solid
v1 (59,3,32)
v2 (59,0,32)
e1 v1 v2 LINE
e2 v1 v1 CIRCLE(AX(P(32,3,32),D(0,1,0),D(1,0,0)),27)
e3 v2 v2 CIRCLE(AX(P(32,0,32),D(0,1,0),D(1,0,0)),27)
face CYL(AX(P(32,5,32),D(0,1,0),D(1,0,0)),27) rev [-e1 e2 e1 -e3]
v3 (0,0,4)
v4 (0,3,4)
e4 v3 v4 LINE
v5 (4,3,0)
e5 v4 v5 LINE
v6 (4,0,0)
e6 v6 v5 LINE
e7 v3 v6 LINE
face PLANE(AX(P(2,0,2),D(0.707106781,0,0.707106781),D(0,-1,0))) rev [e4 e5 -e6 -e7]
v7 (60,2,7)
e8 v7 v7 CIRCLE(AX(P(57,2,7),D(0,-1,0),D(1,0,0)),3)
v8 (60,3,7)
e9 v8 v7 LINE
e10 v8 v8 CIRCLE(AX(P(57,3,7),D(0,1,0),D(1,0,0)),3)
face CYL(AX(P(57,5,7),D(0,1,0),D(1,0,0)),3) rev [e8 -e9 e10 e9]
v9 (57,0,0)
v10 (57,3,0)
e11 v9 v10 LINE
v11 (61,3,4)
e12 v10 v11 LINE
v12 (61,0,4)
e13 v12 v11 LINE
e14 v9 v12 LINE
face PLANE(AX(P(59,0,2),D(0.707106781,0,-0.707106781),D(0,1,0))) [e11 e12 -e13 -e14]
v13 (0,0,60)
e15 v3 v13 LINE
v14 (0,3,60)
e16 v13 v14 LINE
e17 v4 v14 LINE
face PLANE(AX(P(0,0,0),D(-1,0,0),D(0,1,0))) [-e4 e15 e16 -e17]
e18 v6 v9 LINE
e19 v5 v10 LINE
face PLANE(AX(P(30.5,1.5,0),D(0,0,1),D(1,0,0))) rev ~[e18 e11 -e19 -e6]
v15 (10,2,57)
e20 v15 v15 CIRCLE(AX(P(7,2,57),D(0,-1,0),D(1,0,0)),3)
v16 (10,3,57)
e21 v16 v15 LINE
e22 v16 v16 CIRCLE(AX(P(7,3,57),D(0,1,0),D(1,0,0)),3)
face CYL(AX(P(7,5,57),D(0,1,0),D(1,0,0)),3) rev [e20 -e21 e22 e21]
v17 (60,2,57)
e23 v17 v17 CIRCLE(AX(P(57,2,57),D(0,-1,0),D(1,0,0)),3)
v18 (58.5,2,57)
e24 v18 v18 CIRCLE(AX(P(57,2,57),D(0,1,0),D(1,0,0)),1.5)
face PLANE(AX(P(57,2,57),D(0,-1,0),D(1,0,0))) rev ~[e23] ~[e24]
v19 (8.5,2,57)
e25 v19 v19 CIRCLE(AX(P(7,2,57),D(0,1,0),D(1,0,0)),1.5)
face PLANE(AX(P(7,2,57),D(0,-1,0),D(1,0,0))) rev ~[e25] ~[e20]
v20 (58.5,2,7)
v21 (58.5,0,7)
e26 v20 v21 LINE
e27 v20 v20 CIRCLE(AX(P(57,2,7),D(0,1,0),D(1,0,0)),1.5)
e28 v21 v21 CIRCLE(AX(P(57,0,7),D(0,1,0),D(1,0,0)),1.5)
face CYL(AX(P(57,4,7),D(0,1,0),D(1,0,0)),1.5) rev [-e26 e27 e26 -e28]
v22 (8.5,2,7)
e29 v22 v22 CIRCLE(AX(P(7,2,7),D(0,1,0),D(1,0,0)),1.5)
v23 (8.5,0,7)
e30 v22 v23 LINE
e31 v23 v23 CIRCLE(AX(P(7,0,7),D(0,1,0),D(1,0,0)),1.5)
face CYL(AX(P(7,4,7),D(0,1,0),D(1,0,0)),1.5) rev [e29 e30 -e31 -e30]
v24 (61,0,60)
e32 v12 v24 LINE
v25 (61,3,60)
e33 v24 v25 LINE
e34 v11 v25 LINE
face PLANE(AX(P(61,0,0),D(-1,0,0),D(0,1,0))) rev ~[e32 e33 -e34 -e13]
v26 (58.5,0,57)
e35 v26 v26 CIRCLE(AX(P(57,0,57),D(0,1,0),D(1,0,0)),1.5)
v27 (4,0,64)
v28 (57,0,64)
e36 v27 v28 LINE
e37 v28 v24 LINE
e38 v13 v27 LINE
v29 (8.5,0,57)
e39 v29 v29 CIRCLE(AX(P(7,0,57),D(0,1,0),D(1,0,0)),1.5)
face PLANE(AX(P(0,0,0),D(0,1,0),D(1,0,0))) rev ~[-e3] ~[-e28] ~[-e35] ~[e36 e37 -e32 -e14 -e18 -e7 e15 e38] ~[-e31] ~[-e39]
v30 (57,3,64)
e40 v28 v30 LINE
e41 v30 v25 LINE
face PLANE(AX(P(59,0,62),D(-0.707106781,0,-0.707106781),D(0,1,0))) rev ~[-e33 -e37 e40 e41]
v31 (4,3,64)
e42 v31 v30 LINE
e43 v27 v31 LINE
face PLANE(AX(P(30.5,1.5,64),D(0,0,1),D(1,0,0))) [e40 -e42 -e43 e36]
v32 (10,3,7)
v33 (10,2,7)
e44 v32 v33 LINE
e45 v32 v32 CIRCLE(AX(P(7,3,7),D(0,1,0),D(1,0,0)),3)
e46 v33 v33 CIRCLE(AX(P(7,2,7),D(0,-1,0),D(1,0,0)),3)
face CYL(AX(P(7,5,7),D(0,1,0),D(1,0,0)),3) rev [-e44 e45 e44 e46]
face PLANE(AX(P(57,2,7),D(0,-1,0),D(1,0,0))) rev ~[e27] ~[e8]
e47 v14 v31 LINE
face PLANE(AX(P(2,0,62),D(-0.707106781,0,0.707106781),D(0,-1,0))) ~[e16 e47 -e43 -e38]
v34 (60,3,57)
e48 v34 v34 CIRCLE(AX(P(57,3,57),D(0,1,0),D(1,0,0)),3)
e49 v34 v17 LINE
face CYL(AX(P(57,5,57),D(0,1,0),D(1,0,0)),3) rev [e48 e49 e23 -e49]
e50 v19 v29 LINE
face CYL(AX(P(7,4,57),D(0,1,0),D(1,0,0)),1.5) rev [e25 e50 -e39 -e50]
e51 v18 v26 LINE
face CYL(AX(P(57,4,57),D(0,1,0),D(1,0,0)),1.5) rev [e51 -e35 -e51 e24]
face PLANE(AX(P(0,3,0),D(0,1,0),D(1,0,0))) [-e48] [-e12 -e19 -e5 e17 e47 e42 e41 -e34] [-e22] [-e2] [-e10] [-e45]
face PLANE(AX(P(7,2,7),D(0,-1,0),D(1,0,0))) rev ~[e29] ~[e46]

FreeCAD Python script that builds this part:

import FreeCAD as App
import Part
import Sketcher


def edges_at(feature, points):
    """Names of the edges that pass closest to the given points."""
    edges = feature.Shape.Edges
    near = lambda p: min(range(len(edges)), key=lambda i: edges[i].distToShape(Part.Vertex(*p))[0])
    return sorted({f"Edge{near(p) + 1}" for p in points})

doc = App.newDocument("Part")
params = doc.addObject("Spreadsheet::Sheet", "Params")
for row, (alias, value) in enumerate([
    ("sketch1_diameter", "6 mm"),
    ("pad1_length", "3 mm"),
    ("sketch2_diameter", "6 mm"),
    ("pad2_length", "3 mm"),
    ("sketch3_diameter", "6 mm"),
    ("pad3_length", "3 mm"),
    ("sketch4_diameter", "6 mm"),
    ("pad4_length", "3 mm"),
    ("sketch5_diameter", "54 mm"),
    ("pad5_length", "10 mm"),
    ("sketch6_diameter", "3 mm"),
    ("pad6_length", "10 mm"),
    ("sketch7_diameter", "3 mm"),
    ("pad7_length", "10 mm"),
    ("sketch8_diameter", "3 mm"),
    ("pad8_length", "10 mm"),
    ("sketch9_diameter", "3 mm"),
    ("pad9_length", "10 mm"),
    ("sketch10_width", "61 mm"),
    ("sketch10_height", "3 mm"),
    ("pad10_length", "64 mm"),
    ("chamfer_size", "4 mm"),
    ("chamfer2_size", "4 mm"),
], start=1):
    params.set(f"A{row}", alias)
    params.set(f"B{row}", "=" + value)
    params.setAlias(f"B{row}", alias)

body = doc.addObject("PartDesign::Body", "Body")

# Sketch on XZ plane
sketch1 = body.newObject("Sketcher::SketchObject", "Sketch")
sketch1.AttachmentSupport = (doc.getObject("XZ_Plane"), [""])
sketch1.MapMode = "FlatFace"
sketch1.addGeometry(Part.Circle(App.Vector(50, 0, 0), App.Vector(0, 0, 1), 3), False)
sketch1.addConstraint([
    Sketcher.Constraint("PointOnObject", 0, 3, -1),
    Sketcher.Constraint("Diameter", 0, 6.0),
    Sketcher.Constraint("DistanceX", -1, 1, 0, 3, 50.0),
])
sketch1.setExpression("Constraints[1]", "Params.sketch1_diameter")
pad1 = body.newObject("PartDesign::Pad", "Pad")
pad1.Profile = sketch1
pad1.setExpression("Length", "Params.pad1_length")
body2 = doc.addObject("PartDesign::Body", "Body001")

# Sketch on XZ plane
sketch2 = body2.newObject("Sketcher::SketchObject", "Sketch001")
sketch2.AttachmentSupport = (doc.getObject("XZ_Plane001"), [""])
sketch2.MapMode = "FlatFace"
sketch2.addGeometry(Part.Circle(App.Vector(50, 50, 0), App.Vector(0, 0, 1), 3), False)
sketch2.addConstraint([
    Sketcher.Constraint("Diameter", 0, 6.0),
    Sketcher.Constraint("DistanceX", -1, 1, 0, 3, 50.0),
    Sketcher.Constraint("DistanceY", -1, 1, 0, 3, 50.0),
])
sketch2.setExpression("Constraints[0]", "Params.sketch2_diameter")
pad2 = body2.newObject("PartDesign::Pad", "Pad001")
pad2.Profile = sketch2
pad2.setExpression("Length", "Params.pad2_length")
body3 = doc.addObject("PartDesign::Body", "Body002")

# Sketch on XZ plane
sketch3 = body3.newObject("Sketcher::SketchObject", "Sketch002")
sketch3.AttachmentSupport = (doc.getObject("XZ_Plane002"), [""])
sketch3.MapMode = "FlatFace"
sketch3.addGeometry(Part.Circle(App.Vector(0, 50, 0), App.Vector(0, 0, 1), 3), False)
sketch3.addConstraint([
    Sketcher.Constraint("PointOnObject", 0, 3, -2),
    Sketcher.Constraint("Diameter", 0, 6.0),
    Sketcher.Constraint("DistanceY", -1, 1, 0, 3, 50.0),
])
sketch3.setExpression("Constraints[1]", "Params.sketch3_diameter")
pad3 = body3.newObject("PartDesign::Pad", "Pad002")
pad3.Profile = sketch3
pad3.setExpression("Length", "Params.pad3_length")
body4 = doc.addObject("PartDesign::Body", "Body003")
body4.AllowCompound = True

# Sketch on XZ plane
sketch4 = body4.newObject("Sketcher::SketchObject", "Sketch003")
sketch4.AttachmentSupport = (doc.getObject("XZ_Plane003"), [""])
sketch4.MapMode = "FlatFace"
sketch4.addGeometry(Part.Circle(App.Vector(0, 0, 0), App.Vector(0, 0, 1), 3), False)
sketch4.addConstraint([
    Sketcher.Constraint("Coincident", 0, 3, -1, 1),
    Sketcher.Constraint("Diameter", 0, 6.0),
])
sketch4.setExpression("Constraints[1]", "Params.sketch4_diameter")
pad4 = body4.newObject("PartDesign::Pad", "Pad003")
pad4.Profile = sketch4
pad4.setExpression("Length", "Params.pad4_length")
doc.recompute()

boolean = body4.newObject("PartDesign::Boolean", "Boolean")
boolean.Type = "Fuse"
boolean.addObjects([body])
doc.recompute()

boolean2 = body4.newObject("PartDesign::Boolean", "Boolean001")
boolean2.Type = "Fuse"
boolean2.addObjects([body2])
doc.recompute()

boolean3 = body4.newObject("PartDesign::Boolean", "Boolean002")
boolean3.Type = "Fuse"
boolean3.addObjects([body3])
body5 = doc.addObject("PartDesign::Body", "Body004")
body5.AllowCompound = True
doc.recompute()

body4.Placement = App.Placement(App.Vector(7, 5, 7), App.Rotation(App.Vector(0, 0, 1), 0))
boolean4 = body5.newObject("PartDesign::Boolean", "Boolean003")
boolean4.Type = "Fuse"
boolean4.addObjects([body4])
body6 = doc.addObject("PartDesign::Body", "Body005")

# Sketch on XZ plane
sketch5 = body6.newObject("Sketcher::SketchObject", "Sketch004")
sketch5.AttachmentSupport = (doc.getObject("XZ_Plane005"), [""])
sketch5.MapMode = "FlatFace"
sketch5.AttachmentOffset = App.Placement(App.Vector(0, 0, -5), App.Rotation())
sketch5.addGeometry(Part.Circle(App.Vector(32, 32, 0), App.Vector(0, 0, 1), 27), False)
sketch5.addConstraint([
    Sketcher.Constraint("Diameter", 0, 54.0),
    Sketcher.Constraint("DistanceX", -1, 1, 0, 3, 32.0),
    Sketcher.Constraint("DistanceY", -1, 1, 0, 3, 32.0),
])
sketch5.setExpression("Constraints[0]", "Params.sketch5_diameter")
pad5 = body6.newObject("PartDesign::Pad", "Pad004")
pad5.Profile = sketch5
pad5.setExpression("Length", "Params.pad5_length")
body7 = doc.addObject("PartDesign::Body", "Body006")

# Sketch on XZ plane
sketch6 = body7.newObject("Sketcher::SketchObject", "Sketch005")
sketch6.AttachmentSupport = (doc.getObject("XZ_Plane006"), [""])
sketch6.MapMode = "FlatFace"
sketch6.addGeometry(Part.Circle(App.Vector(50, 0, 0), App.Vector(0, 0, 1), 1.5), False)
sketch6.addConstraint([
    Sketcher.Constraint("PointOnObject", 0, 3, -1),
    Sketcher.Constraint("Diameter", 0, 3.0),
    Sketcher.Constraint("DistanceX", -1, 1, 0, 3, 50.0),
])
sketch6.setExpression("Constraints[1]", "Params.sketch6_diameter")
pad6 = body7.newObject("PartDesign::Pad", "Pad005")
pad6.Profile = sketch6
pad6.setExpression("Length", "Params.pad6_length")
body8 = doc.addObject("PartDesign::Body", "Body007")

# Sketch on XZ plane
sketch7 = body8.newObject("Sketcher::SketchObject", "Sketch006")
sketch7.AttachmentSupport = (doc.getObject("XZ_Plane007"), [""])
sketch7.MapMode = "FlatFace"
sketch7.addGeometry(Part.Circle(App.Vector(50, 50, 0), App.Vector(0, 0, 1), 1.5), False)
sketch7.addConstraint([
    Sketcher.Constraint("Diameter", 0, 3.0),
    Sketcher.Constraint("DistanceX", -1, 1, 0, 3, 50.0),
    Sketcher.Constraint("DistanceY", -1, 1, 0, 3, 50.0),
])
sketch7.setExpression("Constraints[0]", "Params.sketch7_diameter")
pad7 = body8.newObject("PartDesign::Pad", "Pad006")
pad7.Profile = sketch7
pad7.setExpression("Length", "Params.pad7_length")
body9 = doc.addObject("PartDesign::Body", "Body008")

# Sketch on XZ plane
sketch8 = body9.newObject("Sketcher::SketchObject", "Sketch007")
sketch8.AttachmentSupport = (doc.getObject("XZ_Plane008"), [""])
sketch8.MapMode = "FlatFace"
sketch8.addGeometry(Part.Circle(App.Vector(0, 50, 0), App.Vector(0, 0, 1), 1.5), False)
sketch8.addConstraint([
    Sketcher.Constraint("PointOnObject", 0, 3, -2),
    Sketcher.Constraint("Diameter", 0, 3.0),
    Sketcher.Constraint("DistanceY", -1, 1, 0, 3, 50.0),
])
sketch8.setExpression("Constraints[1]", "Params.sketch8_diameter")
pad8 = body9.newObject("PartDesign::Pad", "Pad007")
pad8.Profile = sketch8
pad8.setExpression("Length", "Params.pad8_length")
body10 = doc.addObject("PartDesign::Body", "Body009")
body10.AllowCompound = True

# Sketch on XZ plane
sketch9 = body10.newObject("Sketcher::SketchObject", "Sketch008")
sketch9.AttachmentSupport = (doc.getObject("XZ_Plane009"), [""])
sketch9.MapMode = "FlatFace"
sketch9.addGeometry(Part.Circle(App.Vector(0, 0, 0), App.Vector(0, 0, 1), 1.5), False)
sketch9.addConstraint([
    Sketcher.Constraint("Coincident", 0, 3, -1, 1),
    Sketcher.Constraint("Diameter", 0, 3.0),
])
sketch9.setExpression("Constraints[1]", "Params.sketch9_diameter")
pad9 = body10.newObject("PartDesign::Pad", "Pad008")
pad9.Profile = sketch9
pad9.setExpression("Length", "Params.pad9_length")
doc.recompute()

boolean5 = body10.newObject("PartDesign::Boolean", "Boolean004")
boolean5.Type = "Fuse"
boolean5.addObjects([body7])
doc.recompute()

boolean6 = body10.newObject("PartDesign::Boolean", "Boolean005")
boolean6.Type = "Fuse"
boolean6.addObjects([body8])
doc.recompute()

boolean7 = body10.newObject("PartDesign::Boolean", "Boolean006")
boolean7.Type = "Fuse"
boolean7.addObjects([body9])
body11 = doc.addObject("PartDesign::Body", "Body010")
body11.AllowCompound = True
doc.recompute()

body10.Placement = App.Placement(App.Vector(7, 4, 7), App.Rotation(App.Vector(0, 0, 1), 0))
boolean8 = body11.newObject("PartDesign::Boolean", "Boolean007")
boolean8.Type = "Fuse"
boolean8.addObjects([body10])
body12 = doc.addObject("PartDesign::Body", "Body011")

# Sketch on XY plane
sketch10 = body12.newObject("Sketcher::SketchObject", "Sketch009")
sketch10.AttachmentSupport = (doc.getObject("XY_Plane011"), [""])
sketch10.MapMode = "FlatFace"
sketch10.addGeometry([
    Part.LineSegment(App.Vector(0, 3, 0), App.Vector(0, 0, 0)),
    Part.LineSegment(App.Vector(0, 0, 0), App.Vector(61, 0, 0)),
    Part.LineSegment(App.Vector(61, 0, 0), App.Vector(61, 3, 0)),
    Part.LineSegment(App.Vector(61, 3, 0), App.Vector(0, 3, 0)),
], False)
sketch10.addConstraint([
    Sketcher.Constraint("Coincident", 0, 2, 1, 1),
    Sketcher.Constraint("Coincident", 1, 2, 2, 1),
    Sketcher.Constraint("Coincident", 2, 2, 3, 1),
    Sketcher.Constraint("Coincident", 3, 2, 0, 1),
    Sketcher.Constraint("Vertical", 0),
    Sketcher.Constraint("Horizontal", 1),
    Sketcher.Constraint("Vertical", 2),
    Sketcher.Constraint("Horizontal", 3),
    Sketcher.Constraint("Coincident", 0, 2, -1, 1),
    Sketcher.Constraint("DistanceX", 1, 1, 1, 2, 61.0),
    Sketcher.Constraint("DistanceY", 0, 2, 0, 1, 3.0),
])
sketch10.setExpression("Constraints[9]", "Params.sketch10_width")
sketch10.setExpression("Constraints[10]", "Params.sketch10_height")
pad10 = body12.newObject("PartDesign::Pad", "Pad009")
pad10.Profile = sketch10
pad10.setExpression("Length", "Params.pad10_length")
doc.recompute()

boolean9 = body12.newObject("PartDesign::Boolean", "Boolean008")
boolean9.Type = "Cut"
boolean9.addObjects([body11])
doc.recompute()

boolean10 = body12.newObject("PartDesign::Boolean", "Boolean009")
boolean10.Type = "Cut"
boolean10.addObjects([body6])
doc.recompute()

boolean11 = body12.newObject("PartDesign::Boolean", "Boolean010")
boolean11.Type = "Cut"
boolean11.addObjects([body5])
doc.recompute()

chamfer = body12.newObject("PartDesign::Chamfer", "Chamfer")
chamfer.Base = (boolean11, edges_at(boolean11, [(0, 1.5, 0), (61, 1.5, 0)]))
chamfer.setExpression("Size", "Params.chamfer_size")
doc.recompute()

chamfer2 = body12.newObject("PartDesign::Chamfer", "Chamfer001")
chamfer2.Base = (chamfer, edges_at(chamfer, [(0, 1.5, 64), (61, 1.5, 64)]))
chamfer2.setExpression("Size", "Params.chamfer2_size")

doc.recompute()
